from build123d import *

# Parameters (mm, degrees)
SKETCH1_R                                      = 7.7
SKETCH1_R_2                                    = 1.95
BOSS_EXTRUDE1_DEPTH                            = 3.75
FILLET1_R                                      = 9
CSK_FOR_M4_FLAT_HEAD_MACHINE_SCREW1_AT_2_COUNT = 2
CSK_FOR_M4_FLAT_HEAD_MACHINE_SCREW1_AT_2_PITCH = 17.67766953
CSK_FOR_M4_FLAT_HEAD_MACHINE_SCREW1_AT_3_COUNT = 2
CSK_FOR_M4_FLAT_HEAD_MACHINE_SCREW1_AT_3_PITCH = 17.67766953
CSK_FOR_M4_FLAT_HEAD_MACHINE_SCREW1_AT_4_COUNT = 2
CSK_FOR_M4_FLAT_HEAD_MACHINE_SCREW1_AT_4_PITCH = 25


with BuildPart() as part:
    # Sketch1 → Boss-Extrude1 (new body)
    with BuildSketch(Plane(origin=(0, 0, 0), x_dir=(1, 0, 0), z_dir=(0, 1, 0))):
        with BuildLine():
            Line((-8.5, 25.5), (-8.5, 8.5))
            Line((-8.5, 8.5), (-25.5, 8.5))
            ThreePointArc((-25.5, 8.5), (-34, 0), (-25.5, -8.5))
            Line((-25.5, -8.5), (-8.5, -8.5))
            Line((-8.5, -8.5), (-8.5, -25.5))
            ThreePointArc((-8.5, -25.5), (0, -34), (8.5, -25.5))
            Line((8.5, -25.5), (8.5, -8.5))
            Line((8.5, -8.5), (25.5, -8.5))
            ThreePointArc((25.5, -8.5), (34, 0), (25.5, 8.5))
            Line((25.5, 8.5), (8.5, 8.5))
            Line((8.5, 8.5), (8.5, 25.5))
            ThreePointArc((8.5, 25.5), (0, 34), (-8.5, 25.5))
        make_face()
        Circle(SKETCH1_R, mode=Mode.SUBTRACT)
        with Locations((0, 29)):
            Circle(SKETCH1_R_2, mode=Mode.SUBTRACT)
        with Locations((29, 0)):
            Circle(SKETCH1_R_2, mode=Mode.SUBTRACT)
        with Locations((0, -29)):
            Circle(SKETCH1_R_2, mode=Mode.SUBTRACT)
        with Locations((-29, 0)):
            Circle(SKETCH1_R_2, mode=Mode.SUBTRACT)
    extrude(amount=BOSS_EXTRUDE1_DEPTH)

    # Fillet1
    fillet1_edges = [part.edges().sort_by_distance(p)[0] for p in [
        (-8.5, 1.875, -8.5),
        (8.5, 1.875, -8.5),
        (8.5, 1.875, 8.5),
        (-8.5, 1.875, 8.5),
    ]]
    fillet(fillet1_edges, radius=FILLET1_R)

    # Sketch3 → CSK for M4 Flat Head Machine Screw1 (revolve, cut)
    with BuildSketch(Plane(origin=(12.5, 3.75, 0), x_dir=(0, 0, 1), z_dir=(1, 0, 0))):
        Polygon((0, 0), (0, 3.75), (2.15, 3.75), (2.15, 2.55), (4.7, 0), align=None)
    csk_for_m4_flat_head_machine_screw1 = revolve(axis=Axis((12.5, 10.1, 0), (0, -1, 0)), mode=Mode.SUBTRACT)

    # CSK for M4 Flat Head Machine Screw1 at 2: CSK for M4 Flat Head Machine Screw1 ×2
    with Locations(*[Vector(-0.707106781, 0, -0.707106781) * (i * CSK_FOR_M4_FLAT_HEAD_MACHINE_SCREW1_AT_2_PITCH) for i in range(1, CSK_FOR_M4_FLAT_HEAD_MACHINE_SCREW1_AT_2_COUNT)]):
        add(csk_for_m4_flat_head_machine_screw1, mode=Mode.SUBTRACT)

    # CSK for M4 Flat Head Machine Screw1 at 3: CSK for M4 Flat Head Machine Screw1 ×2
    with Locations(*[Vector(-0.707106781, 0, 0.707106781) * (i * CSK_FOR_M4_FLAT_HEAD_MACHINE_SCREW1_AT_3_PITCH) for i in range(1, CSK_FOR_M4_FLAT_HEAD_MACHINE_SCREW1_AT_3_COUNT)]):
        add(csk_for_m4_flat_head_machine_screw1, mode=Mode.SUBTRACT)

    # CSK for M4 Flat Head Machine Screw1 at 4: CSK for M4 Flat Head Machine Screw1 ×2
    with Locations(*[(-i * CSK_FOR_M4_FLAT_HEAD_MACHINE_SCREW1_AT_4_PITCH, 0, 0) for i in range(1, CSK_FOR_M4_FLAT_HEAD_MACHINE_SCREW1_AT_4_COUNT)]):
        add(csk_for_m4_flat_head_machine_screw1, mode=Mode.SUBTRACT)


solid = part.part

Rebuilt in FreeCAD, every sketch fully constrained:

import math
import FreeCAD as App
import Part
import Sketcher
Q = App.Units.Quantity


def edges_at(feature, points):
    """Names of the edges that pass closest to the given points."""
    edges = feature.Shape.Edges
    near = lambda p: min(range(len(edges)), key=lambda i: edges[i].distToShape(Part.Vertex(*p))[0])
    return sorted({f"Edge{near(p) + 1}" for p in points})

doc = App.newDocument("Part")
body = doc.addObject("PartDesign::Body", "Body")

# Sketch on XZ plane
sketch1 = body.newObject("Sketcher::SketchObject", "Sketch")
sketch1.AttachmentSupport = (doc.getObject("XZ_Plane"), [""])
sketch1.MapMode = "FlatFace"
sketch1.addGeometry([
    Part.LineSegment(App.Vector(-8.5, -25.5, 0), App.Vector(-8.5, -8.5, 0)),  # 0
    Part.LineSegment(App.Vector(-8.5, -8.5, 0), App.Vector(-25.5, -8.5, 0)),  # 1
    Part.ArcOfCircle(Part.Circle(App.Vector(-25.5, 0, 0), App.Vector(0, 0, 1), 8.5), math.radians(90), math.radians(270)),  # 2
    Part.LineSegment(App.Vector(-25.5, 8.5, 0), App.Vector(-8.5, 8.5, 0)),  # 3
    Part.LineSegment(App.Vector(-8.5, 8.5, 0), App.Vector(-8.5, 25.5, 0)),  # 4
    Part.ArcOfCircle(Part.Circle(App.Vector(0, 25.5, 0), App.Vector(0, 0, 1), 8.5), math.radians(0), math.radians(180)),  # 5
    Part.LineSegment(App.Vector(8.5, 25.5, 0), App.Vector(8.5, 8.5, 0)),  # 6
    Part.LineSegment(App.Vector(8.5, 8.5, 0), App.Vector(25.5, 8.5, 0)),  # 7
    Part.ArcOfCircle(Part.Circle(App.Vector(25.5, 0, 0), App.Vector(0, 0, 1), 8.5), math.radians(-90), math.radians(90)),  # 8
    Part.LineSegment(App.Vector(25.5, -8.5, 0), App.Vector(8.5, -8.5, 0)),  # 9
    Part.LineSegment(App.Vector(8.5, -8.5, 0), App.Vector(8.5, -25.5, 0)),  # 10
    Part.ArcOfCircle(Part.Circle(App.Vector(0, -25.5, 0), App.Vector(0, 0, 1), 8.5), math.radians(180), math.radians(360)),  # 11
    Part.Circle(App.Vector(0, 29, 0), App.Vector(0, 0, 1), 1.95),  # 12
    Part.Circle(App.Vector(-29, 0, 0), App.Vector(0, 0, 1), 1.95),  # 13
    Part.Circle(App.Vector(0, 0, 0), App.Vector(0, 0, 1), 7.7),  # 14
    Part.Circle(App.Vector(29, 0, 0), App.Vector(0, 0, 1), 1.95),  # 15
    Part.Circle(App.Vector(0, -29, 0), App.Vector(0, 0, 1), 1.95),  # 16
], False)
sketch1.addConstraint([
    Sketcher.Constraint("Coincident", 0, 2, 1, 1),
    Sketcher.Constraint("Tangent", 1, 2, 2, 2),
    Sketcher.Constraint("Tangent", 2, 1, 3, 1),
    Sketcher.Constraint("Coincident", 3, 2, 4, 1),
    Sketcher.Constraint("Tangent", 4, 2, 5, 2),
    Sketcher.Constraint("Tangent", 5, 1, 6, 1),
    Sketcher.Constraint("Coincident", 6, 2, 7, 1),
    Sketcher.Constraint("Tangent", 7, 2, 8, 2),
    Sketcher.Constraint("Tangent", 8, 1, 9, 1),
    Sketcher.Constraint("Coincident", 9, 2, 10, 1),
    Sketcher.Constraint("Tangent", 10, 2, 11, 2),
    Sketcher.Constraint("Tangent", 11, 1, 0, 1),
    Sketcher.Constraint("Vertical", 0),
    Sketcher.Constraint("Horizontal", 1),
    Sketcher.Constraint("Horizontal", 3),
    Sketcher.Constraint("Vertical", 4),
    Sketcher.Constraint("Vertical", 6),
    Sketcher.Constraint("Horizontal", 7),
    Sketcher.Constraint("Horizontal", 9),
    Sketcher.Constraint("Vertical", 10),
    Sketcher.Constraint("Coincident", 14, 3, -1, 1),
    Sketcher.Constraint("Equal", 2, 5),
    Sketcher.Constraint("Equal", 5, 8),
    Sketcher.Constraint("Equal", 8, 11),
    Sketcher.Constraint("Equal", 12, 13),
    Sketcher.Constraint("Equal", 13, 15),
    Sketcher.Constraint("Equal", 15, 16),
    Sketcher.Constraint("Symmetric", 2, 3, 8, 3, -1, 1),
    Sketcher.Constraint("Symmetric", 5, 3, 11, 3, -1, 1),
    Sketcher.Constraint("Symmetric", 13, 3, 15, 3, -1, 1),
    Sketcher.Constraint("Symmetric", 12, 3, 16, 3, -1, 1),
    Sketcher.Constraint("Symmetric", 3, 2, 6, 2, -2),
    Sketcher.Constraint("PointOnObject", 12, 3, -2),
    Sketcher.Constraint("PointOnObject", 13, 3, -1),
    Sketcher.Constraint("Equal", 9, 0),
    Sketcher.Constraint("Diameter", 12, Q("3.9 mm")),
    Sketcher.Constraint("Diameter", 14, Q("15.4 mm")),
    Sketcher.Constraint("Radius", 2, Q("8.5 mm")),
    Sketcher.Constraint("DistanceX", 1, 2, 1, 1, Q("17 mm")),
    Sketcher.Constraint("DistanceY", -1, 1, 12, 3, Q("29 mm")),
    Sketcher.Constraint("DistanceX", 13, 3, -1, 1, Q("29 mm")),
])
pad1 = body.newObject("PartDesign::Pad", "Pad")
pad1.Profile = sketch1
pad1.Length = 3.75
pad1.Reversed = True
doc.recompute()

fillet = body.newObject("PartDesign::Fillet", "Fillet")
fillet.Base = (pad1, edges_at(pad1, [
    (-8.5, 1.875, -8.5),
    (8.5, 1.875, -8.5),
    (8.5, 1.875, 8.5),
    (-8.5, 1.875, 8.5),
]))
fillet.Radius = 9

# Sketch on YZ plane
sketch2 = body.newObject("Sketcher::SketchObject", "Sketch001")
sketch2.AttachmentSupport = (doc.getObject("YZ_Plane"), [""])
sketch2.MapMode = "FlatFace"
sketch2.AttachmentOffset = App.Placement(App.Vector(0, 0, 12.5), App.Rotation())
sketch2.addGeometry([
    Part.LineSegment(App.Vector(0, 0, 0), App.Vector(3.75, 0, 0)),  # 0
    Part.LineSegment(App.Vector(3.75, 0, 0), App.Vector(3.75, 4.7, 0)),  # 1
    Part.LineSegment(App.Vector(3.75, 4.7, 0), App.Vector(1.2, 2.15, 0)),  # 2
    Part.LineSegment(App.Vector(1.2, 2.15, 0), App.Vector(0, 2.15, 0)),  # 3
    Part.LineSegment(App.Vector(0, 2.15, 0), App.Vector(0, 0, 0)),  # 4
], False)
sketch2.addConstraint([
    Sketcher.Constraint("Coincident", 0, 2, 1, 1),
    Sketcher.Constraint("Coincident", 1, 2, 2, 1),
    Sketcher.Constraint("Coincident", 2, 2, 3, 1),
    Sketcher.Constraint("Coincident", 3, 2, 4, 1),
    Sketcher.Constraint("Coincident", 4, 2, 0, 1),
    Sketcher.Constraint("Horizontal", 0),
    Sketcher.Constraint("Vertical", 1),
    Sketcher.Constraint("Horizontal", 3),
    Sketcher.Constraint("Vertical", 4),
    Sketcher.Constraint("Coincident", 4, 2, -1, 1),
    Sketcher.Constraint("Angle", 2, Q("-135 deg")),
    Sketcher.Constraint("DistanceX", 3, 2, 3, 1, Q("1.2 mm")),
    Sketcher.Constraint("DistanceY", 1, 1, 1, 2, Q("4.7 mm")),
    Sketcher.Constraint("DistanceX", 0, 1, 0, 2, Q("3.75 mm")),
])
groove = body.newObject("PartDesign::Groove", "Groove")
groove.Profile = sketch2
groove.ReferenceAxis = (sketch2, ["H_Axis"])
groove.Angle = 360
doc.recompute()

datumline = body.newObject("PartDesign::Line", "DatumLine")
datumline.Placement = App.Placement(App.Vector(0, 0, 0), App.Rotation(App.Vector(0, 0, 1), App.Vector(-0.707106781, 0, -0.707106781)))
linearpattern = body.newObject("PartDesign::LinearPattern", "LinearPattern")
linearpattern.Originals = [groove]
linearpattern.Direction = (datumline, [""])
linearpattern.Mode = "offset"
linearpattern.Offset = 17.67767
linearpattern.Occurrences = 2
body.Tip = linearpattern
doc.recompute()

datumline2 = body.newObject("PartDesign::Line", "DatumLine001")
datumline2.Placement = App.Placement(App.Vector(0, 0, 0), App.Rotation(App.Vector(0, 0, 1), App.Vector(-0.707106781, 0, 0.707106781)))
linearpattern2 = body.newObject("PartDesign::LinearPattern", "LinearPattern001")
linearpattern2.Originals = [groove]
linearpattern2.Direction = (datumline2, [""])
linearpattern2.Mode = "offset"
linearpattern2.Offset = 17.67767
linearpattern2.Occurrences = 2
body.Tip = linearpattern2
doc.recompute()

linearpattern3 = body.newObject("PartDesign::LinearPattern", "LinearPattern002")
linearpattern3.Originals = [groove]
linearpattern3.Direction = (doc.getObject("X_Axis"), [""])
linearpattern3.Mode = "offset"
linearpattern3.Offset = 25
linearpattern3.Occurrences = 2
linearpattern3.Reversed = True
body.Tip = linearpattern3

doc.recompute()
